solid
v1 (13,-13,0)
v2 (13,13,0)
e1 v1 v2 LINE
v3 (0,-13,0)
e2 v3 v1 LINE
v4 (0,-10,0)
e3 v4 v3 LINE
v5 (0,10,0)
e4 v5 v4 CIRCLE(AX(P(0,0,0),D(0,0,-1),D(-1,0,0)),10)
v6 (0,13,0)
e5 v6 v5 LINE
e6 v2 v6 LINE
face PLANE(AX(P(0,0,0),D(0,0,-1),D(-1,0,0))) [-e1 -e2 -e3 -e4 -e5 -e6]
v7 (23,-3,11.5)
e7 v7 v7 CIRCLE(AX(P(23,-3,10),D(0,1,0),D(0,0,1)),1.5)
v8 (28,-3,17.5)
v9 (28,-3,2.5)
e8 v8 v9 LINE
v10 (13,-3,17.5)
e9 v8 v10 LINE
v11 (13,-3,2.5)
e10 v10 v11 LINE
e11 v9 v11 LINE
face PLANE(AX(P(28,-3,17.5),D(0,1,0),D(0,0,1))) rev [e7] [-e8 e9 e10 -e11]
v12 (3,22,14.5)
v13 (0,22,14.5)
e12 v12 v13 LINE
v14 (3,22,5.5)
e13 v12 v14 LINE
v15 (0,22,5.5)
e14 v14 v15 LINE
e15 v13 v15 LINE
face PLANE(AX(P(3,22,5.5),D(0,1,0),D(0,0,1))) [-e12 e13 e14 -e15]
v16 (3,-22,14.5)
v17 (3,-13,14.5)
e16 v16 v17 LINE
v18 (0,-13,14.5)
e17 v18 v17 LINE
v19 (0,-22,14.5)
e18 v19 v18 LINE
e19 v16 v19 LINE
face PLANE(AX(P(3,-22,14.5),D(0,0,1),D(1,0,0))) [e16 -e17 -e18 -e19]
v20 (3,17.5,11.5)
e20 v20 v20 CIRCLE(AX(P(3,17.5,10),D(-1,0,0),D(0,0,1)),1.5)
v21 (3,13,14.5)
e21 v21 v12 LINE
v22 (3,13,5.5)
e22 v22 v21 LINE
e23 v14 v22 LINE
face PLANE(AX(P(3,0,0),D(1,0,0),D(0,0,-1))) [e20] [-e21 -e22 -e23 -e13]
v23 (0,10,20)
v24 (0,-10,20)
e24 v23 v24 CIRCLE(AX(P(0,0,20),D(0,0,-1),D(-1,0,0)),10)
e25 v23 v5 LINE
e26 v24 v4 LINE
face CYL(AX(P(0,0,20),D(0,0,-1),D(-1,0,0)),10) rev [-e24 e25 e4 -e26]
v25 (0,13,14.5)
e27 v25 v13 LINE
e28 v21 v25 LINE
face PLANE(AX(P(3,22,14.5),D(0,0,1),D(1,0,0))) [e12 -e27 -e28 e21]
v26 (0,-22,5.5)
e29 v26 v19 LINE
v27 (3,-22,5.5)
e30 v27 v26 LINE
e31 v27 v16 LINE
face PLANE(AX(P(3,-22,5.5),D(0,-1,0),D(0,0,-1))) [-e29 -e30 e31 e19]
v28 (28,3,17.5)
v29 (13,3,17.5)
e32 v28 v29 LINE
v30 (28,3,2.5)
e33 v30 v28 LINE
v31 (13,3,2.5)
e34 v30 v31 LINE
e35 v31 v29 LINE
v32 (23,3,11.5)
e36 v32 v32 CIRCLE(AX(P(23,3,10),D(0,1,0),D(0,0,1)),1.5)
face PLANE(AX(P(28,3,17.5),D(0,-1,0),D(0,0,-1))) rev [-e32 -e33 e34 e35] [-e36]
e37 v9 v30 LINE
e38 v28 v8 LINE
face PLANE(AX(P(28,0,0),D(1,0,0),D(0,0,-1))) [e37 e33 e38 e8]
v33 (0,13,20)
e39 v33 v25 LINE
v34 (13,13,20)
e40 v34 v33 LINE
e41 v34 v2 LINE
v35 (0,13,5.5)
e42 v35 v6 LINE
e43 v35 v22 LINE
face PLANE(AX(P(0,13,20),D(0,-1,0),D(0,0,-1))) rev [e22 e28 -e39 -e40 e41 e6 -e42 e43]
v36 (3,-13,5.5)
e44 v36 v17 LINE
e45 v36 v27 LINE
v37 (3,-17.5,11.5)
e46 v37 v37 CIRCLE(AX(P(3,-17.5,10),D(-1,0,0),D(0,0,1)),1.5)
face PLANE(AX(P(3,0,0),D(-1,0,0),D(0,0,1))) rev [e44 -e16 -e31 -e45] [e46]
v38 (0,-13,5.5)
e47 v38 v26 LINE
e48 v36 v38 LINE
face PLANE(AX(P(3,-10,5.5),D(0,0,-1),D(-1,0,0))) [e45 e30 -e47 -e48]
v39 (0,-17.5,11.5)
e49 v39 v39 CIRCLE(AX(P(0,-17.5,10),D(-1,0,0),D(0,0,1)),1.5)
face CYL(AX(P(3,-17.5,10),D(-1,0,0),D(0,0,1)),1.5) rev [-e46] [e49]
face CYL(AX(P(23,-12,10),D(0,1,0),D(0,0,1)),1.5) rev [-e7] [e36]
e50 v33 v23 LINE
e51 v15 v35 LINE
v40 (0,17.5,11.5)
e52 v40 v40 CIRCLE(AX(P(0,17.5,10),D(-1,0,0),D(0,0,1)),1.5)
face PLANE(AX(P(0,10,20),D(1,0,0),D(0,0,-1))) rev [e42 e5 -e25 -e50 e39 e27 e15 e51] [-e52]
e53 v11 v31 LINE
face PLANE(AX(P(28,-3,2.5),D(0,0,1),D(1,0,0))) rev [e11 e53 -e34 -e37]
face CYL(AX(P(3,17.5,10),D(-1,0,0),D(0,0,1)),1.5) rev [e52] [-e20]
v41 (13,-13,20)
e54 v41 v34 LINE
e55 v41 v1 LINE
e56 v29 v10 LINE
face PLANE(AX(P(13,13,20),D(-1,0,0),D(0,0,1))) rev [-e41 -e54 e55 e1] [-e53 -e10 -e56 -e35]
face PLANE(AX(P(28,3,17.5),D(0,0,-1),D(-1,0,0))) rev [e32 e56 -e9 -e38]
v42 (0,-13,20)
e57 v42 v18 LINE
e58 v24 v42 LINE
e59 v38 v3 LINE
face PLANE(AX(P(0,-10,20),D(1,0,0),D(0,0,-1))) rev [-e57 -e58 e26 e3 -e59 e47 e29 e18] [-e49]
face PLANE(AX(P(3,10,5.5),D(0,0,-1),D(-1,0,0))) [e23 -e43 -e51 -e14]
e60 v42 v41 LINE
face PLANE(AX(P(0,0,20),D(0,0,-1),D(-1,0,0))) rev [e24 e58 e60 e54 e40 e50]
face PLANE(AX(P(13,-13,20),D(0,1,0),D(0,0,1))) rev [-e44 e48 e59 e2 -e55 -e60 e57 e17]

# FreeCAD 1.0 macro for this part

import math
import FreeCAD as App
import Part
import Sketcher
from FreeCAD import Vector
Q = App.Units.Quantity


def add_polygon(sketch, points):
    """Adds a closed chain of lines whose ends are joined by coincident constraints."""
    first, n = sketch.GeometryCount, len(points)
    for a, b in zip(points, points[1:] + points[:1]):
        sketch.addGeometry(Part.LineSegment(App.Vector(*a, 0), App.Vector(*b, 0)), False)
    for i in range(n):
        sketch.addConstraint(Sketcher.Constraint("Coincident", first + i, 2, first + (i + 1) % n, 1))

doc = App.newDocument("Part")
body = doc.addObject("PartDesign::Body", "Body")

sketch1 = body.newObject("Sketcher::SketchObject", "Sketch")
sketch1.AttachmentSupport = (doc.getObject("XY_Plane"), [""])
sketch1.MapMode = "FlatFace"
sketch1.addGeometry([
    Part.LineSegment(Vector(0, 13, 0), Vector(0, 10, 0)),
    Part.ArcOfCircle(Part.Circle(Vector(0, 0, 0), Vector(0, 0, 1), 10), math.radians(-90), math.radians(90)),
    Part.LineSegment(Vector(0, -10, 0), Vector(0, -13, 0)),
    Part.LineSegment(Vector(0, -13, 0), Vector(13, -13, 0)),
    Part.LineSegment(Vector(13, -13, 0), Vector(13, 13, 0)),
    Part.LineSegment(Vector(13, 13, 0), Vector(0, 13, 0)),
], False)
sketch1.addConstraint([
    Sketcher.Constraint("Coincident", 0, 2, 1, 2),
    Sketcher.Constraint("Coincident", 1, 1, 2, 1),
    Sketcher.Constraint("Coincident", 2, 2, 3, 1),
    Sketcher.Constraint("Coincident", 3, 2, 4, 1),
    Sketcher.Constraint("Coincident", 4, 2, 5, 1),
    Sketcher.Constraint("Coincident", 5, 2, 0, 1),
    Sketcher.Constraint("Vertical", 0),
    Sketcher.Constraint("Vertical", 2),
    Sketcher.Constraint("Horizontal", 3),
    Sketcher.Constraint("Vertical", 4),
    Sketcher.Constraint("Horizontal", 5),
    Sketcher.Constraint("Coincident", 1, 3, -1, 1),
    Sketcher.Constraint("Symmetric", 2, 2, 5, 2, -1, 1),
    Sketcher.Constraint("PointOnObject", 0, 2, -2),
    Sketcher.Constraint("Radius", 1, Q("10 mm")),
    Sketcher.Constraint("DistanceX", 3, 1, 3, 2, Q("13 mm")),
    Sketcher.Constraint("DistanceY", 0, 2, 0, 1, Q("3 mm")),
])
pad1 = body.newObject("PartDesign::Pad", "Pad")
pad1.Profile = sketch1
pad1.Length = 20

sketch2 = body.newObject("Sketcher::SketchObject", "Sketch001")
sketch2.AttachmentSupport = (doc.getObject("YZ_Plane"), [""])
sketch2.MapMode = "FlatFace"
add_polygon(sketch2, [(22, 5.5), (10, 5.5), (10, 14.5), (22, 14.5)])
sketch2.addGeometry(Part.Circle(Vector(17.5, 10, 0), Vector(0, 0, 1), 1.5), False)
add_polygon(sketch2, [(-10, 5.5), (-22, 5.5), (-22, 14.5), (-10, 14.5)])
sketch2.addGeometry(Part.Circle(Vector(-17.5, 10, 0), Vector(0, 0, 1), 1.5), False)
sketch2.addConstraint([
    Sketcher.Constraint("Horizontal", 0),
    Sketcher.Constraint("Vertical", 1),
    Sketcher.Constraint("Horizontal", 2),
    Sketcher.Constraint("Vertical", 3),
    Sketcher.Constraint("Horizontal", 5),
    Sketcher.Constraint("Vertical", 6),
    Sketcher.Constraint("Horizontal", 7),
    Sketcher.Constraint("Vertical", 8),
    Sketcher.Constraint("Equal", 4, 9),
    Sketcher.Constraint("Symmetric", 4, 3, 9, 3, -2),
    Sketcher.Constraint("Symmetric", 3, 2, 5, 2, -2),
    Sketcher.Constraint("Symmetric", 1, 2, 7, 2, -2),
    Sketcher.Constraint("Diameter", 4, Q("3 mm")),
    Sketcher.Constraint("DistanceX", 0, 2, 0, 1, Q("12 mm")),
    Sketcher.Constraint("DistanceY", 1, 1, 1, 2, Q("9 mm")),
    Sketcher.Constraint("DistanceY", -1, 1, 4, 3, Q("10 mm")),
    Sketcher.Constraint("DistanceX", -1, 1, 0, 2, Q("10 mm")),
    Sketcher.Constraint("DistanceX", 9, 3, 4, 3, Q("35 mm")),
    Sketcher.Constraint("DistanceY", -1, 1, 0, 2, Q("5.5 mm")),
])
pad2 = body.newObject("PartDesign::Pad", "Pad001")
pad2.Profile = sketch2
pad2.Length = 3

sketch3 = body.newObject("Sketcher::SketchObject", "Sketch002")
sketch3.AttachmentSupport = (doc.getObject("YZ_Plane"), [""])
sketch3.MapMode = "FlatFace"
sketch3.AttachmentOffset = App.Placement(Vector(0, 0, 13), App.Rotation())
add_polygon(sketch3, [(3, 18), (-3, 18), (-3, 2), (3, 2)])
sketch3.addConstraint([
    Sketcher.Constraint("Horizontal", 0),
    Sketcher.Constraint("Vertical", 1),
    Sketcher.Constraint("Horizontal", 2),
    Sketcher.Constraint("Vertical", 3),
    Sketcher.Constraint("DistanceX", 0, 2, 0, 1, Q("6 mm")),
    Sketcher.Constraint("DistanceY", 1, 2, 1, 1, Q("15 mm")),
    Sketcher.Constraint("DistanceX", 0, 2, -1, 1, Q("3 mm")),
    Sketcher.Constraint("DistanceY", -1, 1, 0, 2, Q("17.5 mm")),
])
pad3 = body.newObject("PartDesign::Pad", "Pad002")
pad3.Profile = sketch3
pad3.Length = 15

sketch4 = body.newObject("Sketcher::SketchObject", "Sketch003")
sketch4.AttachmentSupport = (doc.getObject("XZ_Plane"), [""])
sketch4.MapMode = "FlatFace"
sketch4.AttachmentOffset = App.Placement(Vector(0, 0, -3), App.Rotation())
sketch4.addGeometry(Part.Circle(Vector(23, 10, 0), Vector(0, 0, 1), 1.5), False)
sketch4.addConstraint([
    Sketcher.Constraint("Diameter", 0, Q("3 mm")),
    Sketcher.Constraint("DistanceX", -1, 1, 0, 3, Q("23 mm")),
    Sketcher.Constraint("DistanceY", -1, 1, 0, 3, Q("10 mm")),
])
pocket1 = body.newObject("PartDesign::Pocket", "Pocket")
pocket1.Profile = sketch4
pocket1.Length = 15
pocket1.Reversed = True

sketch5 = body.newObject("Sketcher::SketchObject", "Sketch004")
sketch5.AttachmentSupport = (doc.getObject("YZ_Plane"), [""])
sketch5.MapMode = "FlatFace"
add_polygon(sketch5, [(10, 5.5), (10, 14.5), (22, 14.5), (22, 5.5)])
sketch5.addGeometry(Part.Circle(Vector(17.5, 10, 0), Vector(0, 0, 1), 1.5), False)
add_polygon(sketch5, [(-10, 5.5), (-22, 5.5), (-22, 14.5), (-10, 14.5)])
sketch5.addGeometry(Part.Circle(Vector(-17.5, 10, 0), Vector(0, 0, 1), 1.5), False)
sketch5.addConstraint([
    Sketcher.Constraint("Vertical", 0),
    Sketcher.Constraint("Horizontal", 1),
    Sketcher.Constraint("Vertical", 2),
    Sketcher.Constraint("Horizontal", 3),
    Sketcher.Constraint("Horizontal", 5),
    Sketcher.Constraint("Vertical", 6),
    Sketcher.Constraint("Horizontal", 7),
    Sketcher.Constraint("Vertical", 8),
    Sketcher.Constraint("Equal", 4, 9),
    Sketcher.Constraint("Symmetric", 4, 3, 9, 3, -2),
    Sketcher.Constraint("Symmetric", 2, 2, 5, 2, -2),
    Sketcher.Constraint("Symmetric", 0, 2, 7, 2, -2),
    Sketcher.Constraint("Diameter", 4, Q("3 mm")),
    Sketcher.Constraint("DistanceX", 1, 1, 1, 2, Q("12 mm")),
    Sketcher.Constraint("DistanceY", 0, 1, 0, 2, Q("9 mm")),
    Sketcher.Constraint("DistanceY", -1, 1, 4, 3, Q("10 mm")),
    Sketcher.Constraint("DistanceX", -1, 1, 0, 2, Q("10 mm")),
    Sketcher.Constraint("DistanceX", 9, 3, 4, 3, Q("35 mm")),
    Sketcher.Constraint("DistanceY", -1, 1, 0, 2, Q("14.5 mm")),
])
pad4 = body.newObject("PartDesign::Pad", "Pad003")
pad4.Profile = sketch5
pad4.Length = 3

doc.recompute()
